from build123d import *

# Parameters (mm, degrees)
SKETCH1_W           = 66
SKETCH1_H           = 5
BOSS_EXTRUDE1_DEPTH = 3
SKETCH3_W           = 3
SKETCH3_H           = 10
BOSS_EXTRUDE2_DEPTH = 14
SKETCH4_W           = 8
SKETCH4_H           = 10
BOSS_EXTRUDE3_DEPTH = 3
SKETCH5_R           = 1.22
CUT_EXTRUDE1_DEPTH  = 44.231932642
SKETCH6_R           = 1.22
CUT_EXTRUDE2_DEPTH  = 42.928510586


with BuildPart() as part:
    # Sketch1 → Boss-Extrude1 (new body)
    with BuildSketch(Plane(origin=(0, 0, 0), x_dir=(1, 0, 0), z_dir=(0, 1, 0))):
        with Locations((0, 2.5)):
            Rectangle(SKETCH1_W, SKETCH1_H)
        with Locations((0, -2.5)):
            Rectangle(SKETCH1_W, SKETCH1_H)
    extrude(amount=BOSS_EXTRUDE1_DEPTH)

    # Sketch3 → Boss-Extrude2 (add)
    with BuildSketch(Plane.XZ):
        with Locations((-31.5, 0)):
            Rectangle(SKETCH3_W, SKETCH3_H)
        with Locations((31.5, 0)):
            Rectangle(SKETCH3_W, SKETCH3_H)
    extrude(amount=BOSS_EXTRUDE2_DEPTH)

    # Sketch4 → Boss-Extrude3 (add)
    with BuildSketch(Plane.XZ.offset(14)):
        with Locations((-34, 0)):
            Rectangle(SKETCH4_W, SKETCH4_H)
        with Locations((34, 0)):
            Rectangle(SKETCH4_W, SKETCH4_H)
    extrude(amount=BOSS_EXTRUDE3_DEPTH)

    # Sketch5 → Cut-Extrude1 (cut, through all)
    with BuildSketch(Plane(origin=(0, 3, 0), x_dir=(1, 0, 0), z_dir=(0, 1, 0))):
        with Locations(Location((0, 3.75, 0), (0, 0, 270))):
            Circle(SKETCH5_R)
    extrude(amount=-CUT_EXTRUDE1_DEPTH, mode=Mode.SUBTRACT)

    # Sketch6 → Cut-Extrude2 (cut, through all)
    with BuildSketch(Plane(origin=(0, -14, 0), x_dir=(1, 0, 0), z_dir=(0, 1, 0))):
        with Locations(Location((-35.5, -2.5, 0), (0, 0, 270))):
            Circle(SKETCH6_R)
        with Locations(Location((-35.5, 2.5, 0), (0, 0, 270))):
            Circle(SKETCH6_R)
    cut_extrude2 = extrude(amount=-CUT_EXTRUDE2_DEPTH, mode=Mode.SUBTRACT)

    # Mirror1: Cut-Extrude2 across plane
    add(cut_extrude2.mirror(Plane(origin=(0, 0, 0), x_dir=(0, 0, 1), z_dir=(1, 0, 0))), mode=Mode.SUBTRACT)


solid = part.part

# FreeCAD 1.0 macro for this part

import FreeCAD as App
import Part
import Sketcher


def add_polygon(sketch, points):
    """Adds a closed chain of lines whose ends are joined by coincident constraints."""
    first, n = sketch.GeometryCount, len(points)
    for a, b in zip(points, points[1:] + points[:1]):
        sketch.addGeometry(Part.LineSegment(App.Vector(*a, 0), App.Vector(*b, 0)), False)
    for i in range(n):
        sketch.addConstraint(Sketcher.Constraint("Coincident", first + i, 2, first + (i + 1) % n, 1))

doc = App.newDocument("Part")
body = doc.addObject("PartDesign::Body", "Body")

sketch1 = body.newObject("Sketcher::SketchObject", "Sketch")
sketch1.AttachmentSupport = (doc.getObject("XZ_Plane"), [""])
sketch1.MapMode = "FlatFace"
add_polygon(sketch1, [(-33, -5), (-33, 5), (33, 5), (33, -5)])
sketch1.addConstraint([
    Sketcher.Constraint("Vertical", 0),
    Sketcher.Constraint("Horizontal", 1),
    Sketcher.Constraint("Vertical", 2),
    Sketcher.Constraint("Horizontal", 3),
    Sketcher.Constraint("Symmetric", 0, 2, 2, 2, -1, 1),
    Sketcher.Constraint("DistanceX", 1, 1, 1, 2, 66.0),
    Sketcher.Constraint("DistanceY", 0, 1, 0, 2, 10.0),
])
pad1 = body.newObject("PartDesign::Pad", "Pad")
pad1.Profile = sketch1
pad1.Length = 3
pad1.Reversed = True

sketch2 = body.newObject("Sketcher::SketchObject", "Sketch001")
sketch2.AttachmentSupport = (doc.getObject("XZ_Plane"), [""])
sketch2.MapMode = "FlatFace"
add_polygon(sketch2, [(-33, 5), (-33, -5), (-30, -5), (-30, 5)])
add_polygon(sketch2, [(30, 5), (30, -5), (33, -5), (33, 5)])
sketch2.addConstraint([
    Sketcher.Constraint("Vertical", 0),
    Sketcher.Constraint("Horizontal", 1),
    Sketcher.Constraint("Vertical", 2),
    Sketcher.Constraint("Horizontal", 3),
    Sketcher.Constraint("Vertical", 4),
    Sketcher.Constraint("Horizontal", 5),
    Sketcher.Constraint("Vertical", 6),
    Sketcher.Constraint("Horizontal", 7),
    Sketcher.Constraint("Symmetric", 2, 2, 4, 2, -1, 1),
    Sketcher.Constraint("Symmetric", 0, 2, 6, 2, -1, 1),
    Sketcher.Constraint("Horizontal", 1, 2, 4, 2),
    Sketcher.Constraint("DistanceX", 1, 1, 1, 2, 3.0),
    Sketcher.Constraint("DistanceY", 0, 2, 0, 1, 10.0),
    Sketcher.Constraint("DistanceX", 0, 2, -1, 1, 33.0),
])
pad2 = body.newObject("PartDesign::Pad", "Pad001")
pad2.Profile = sketch2
pad2.Length = 14

sketch3 = body.newObject("Sketcher::SketchObject", "Sketch002")
sketch3.AttachmentSupport = (doc.getObject("XZ_Plane"), [""])
sketch3.MapMode = "FlatFace"
sketch3.AttachmentOffset = App.Placement(App.Vector(0, 0, 14), App.Rotation())
add_polygon(sketch3, [(-38, 5), (-38, -5), (-30, -5), (-30, 5)])
add_polygon(sketch3, [(30, 5), (30, -5), (38, -5), (38, 5)])
sketch3.addConstraint([
    Sketcher.Constraint("Vertical", 0),
    Sketcher.Constraint("Horizontal", 1),
    Sketcher.Constraint("Vertical", 2),
    Sketcher.Constraint("Horizontal", 3),
    Sketcher.Constraint("Vertical", 4),
    Sketcher.Constraint("Horizontal", 5),
    Sketcher.Constraint("Vertical", 6),
    Sketcher.Constraint("Horizontal", 7),
    Sketcher.Constraint("Symmetric", 2, 2, 4, 2, -1, 1),
    Sketcher.Constraint("Symmetric", 0, 2, 6, 2, -1, 1),
    Sketcher.Constraint("Horizontal", 1, 2, 4, 2),
    Sketcher.Constraint("DistanceX", 1, 1, 1, 2, 8.0),
    Sketcher.Constraint("DistanceY", 0, 2, 0, 1, 10.0),
    Sketcher.Constraint("DistanceX", 0, 2, -1, 1, 38.0),
])
pad3 = body.newObject("PartDesign::Pad", "Pad002")
pad3.Profile = sketch3
pad3.Length = 3

sketch4 = body.newObject("Sketcher::SketchObject", "Sketch003")
sketch4.AttachmentSupport = (doc.getObject("XZ_Plane"), [""])
sketch4.MapMode = "FlatFace"
sketch4.AttachmentOffset = App.Placement(App.Vector(0, 0, -3), App.Rotation())
sketch4.addGeometry(Part.Circle(App.Vector(0, -3.8, 0), App.Vector(0, 0, 1), 1.2), False)
sketch4.addConstraint([
    Sketcher.Constraint("PointOnObject", 0, 3, -2),
    Sketcher.Constraint("Diameter", 0, 2.44),
    Sketcher.Constraint("DistanceY", 0, 3, -1, 1, 3.75),
])
pocket1 = body.newObject("PartDesign::Pocket", "Pocket")
pocket1.Profile = sketch4
pocket1.Type = "ThroughAll"
pocket1.Reversed = True

sketch5 = body.newObject("Sketcher::SketchObject", "Sketch004")
sketch5.AttachmentSupport = (doc.getObject("XZ_Plane"), [""])
sketch5.MapMode = "FlatFace"
sketch5.AttachmentOffset = App.Placement(App.Vector(0, 0, 14), App.Rotation())
sketch5.addGeometry([
    Part.Circle(App.Vector(-35.5, 2.5, 0), App.Vector(0, 0, 1), 1.2),
    Part.Circle(App.Vector(-35.5, -2.5, 0), App.Vector(0, 0, 1), 1.2),
], False)
sketch5.addConstraint([
    Sketcher.Constraint("Equal", 0, 1),
    Sketcher.Constraint("Symmetric", 0, 3, 1, 3, -1),
    Sketcher.Constraint("Diameter", 0, 2.44),
    Sketcher.Constraint("DistanceY", 1, 3, 0, 3, 5.0),
    Sketcher.Constraint("DistanceX", 0, 3, -1, 1, 35.5),
])
pocket2 = body.newObject("PartDesign::Pocket", "Pocket001")
pocket2.Profile = sketch5
pocket2.Type = "ThroughAll"
pocket2.Reversed = True
doc.recompute()

mirrored = body.newObject("PartDesign::Mirrored", "Mirrored")
mirrored.Originals = [pocket2]
mirrored.MirrorPlane = (doc.getObject("YZ_Plane"), [""])
body.Tip = mirrored

doc.recompute()
